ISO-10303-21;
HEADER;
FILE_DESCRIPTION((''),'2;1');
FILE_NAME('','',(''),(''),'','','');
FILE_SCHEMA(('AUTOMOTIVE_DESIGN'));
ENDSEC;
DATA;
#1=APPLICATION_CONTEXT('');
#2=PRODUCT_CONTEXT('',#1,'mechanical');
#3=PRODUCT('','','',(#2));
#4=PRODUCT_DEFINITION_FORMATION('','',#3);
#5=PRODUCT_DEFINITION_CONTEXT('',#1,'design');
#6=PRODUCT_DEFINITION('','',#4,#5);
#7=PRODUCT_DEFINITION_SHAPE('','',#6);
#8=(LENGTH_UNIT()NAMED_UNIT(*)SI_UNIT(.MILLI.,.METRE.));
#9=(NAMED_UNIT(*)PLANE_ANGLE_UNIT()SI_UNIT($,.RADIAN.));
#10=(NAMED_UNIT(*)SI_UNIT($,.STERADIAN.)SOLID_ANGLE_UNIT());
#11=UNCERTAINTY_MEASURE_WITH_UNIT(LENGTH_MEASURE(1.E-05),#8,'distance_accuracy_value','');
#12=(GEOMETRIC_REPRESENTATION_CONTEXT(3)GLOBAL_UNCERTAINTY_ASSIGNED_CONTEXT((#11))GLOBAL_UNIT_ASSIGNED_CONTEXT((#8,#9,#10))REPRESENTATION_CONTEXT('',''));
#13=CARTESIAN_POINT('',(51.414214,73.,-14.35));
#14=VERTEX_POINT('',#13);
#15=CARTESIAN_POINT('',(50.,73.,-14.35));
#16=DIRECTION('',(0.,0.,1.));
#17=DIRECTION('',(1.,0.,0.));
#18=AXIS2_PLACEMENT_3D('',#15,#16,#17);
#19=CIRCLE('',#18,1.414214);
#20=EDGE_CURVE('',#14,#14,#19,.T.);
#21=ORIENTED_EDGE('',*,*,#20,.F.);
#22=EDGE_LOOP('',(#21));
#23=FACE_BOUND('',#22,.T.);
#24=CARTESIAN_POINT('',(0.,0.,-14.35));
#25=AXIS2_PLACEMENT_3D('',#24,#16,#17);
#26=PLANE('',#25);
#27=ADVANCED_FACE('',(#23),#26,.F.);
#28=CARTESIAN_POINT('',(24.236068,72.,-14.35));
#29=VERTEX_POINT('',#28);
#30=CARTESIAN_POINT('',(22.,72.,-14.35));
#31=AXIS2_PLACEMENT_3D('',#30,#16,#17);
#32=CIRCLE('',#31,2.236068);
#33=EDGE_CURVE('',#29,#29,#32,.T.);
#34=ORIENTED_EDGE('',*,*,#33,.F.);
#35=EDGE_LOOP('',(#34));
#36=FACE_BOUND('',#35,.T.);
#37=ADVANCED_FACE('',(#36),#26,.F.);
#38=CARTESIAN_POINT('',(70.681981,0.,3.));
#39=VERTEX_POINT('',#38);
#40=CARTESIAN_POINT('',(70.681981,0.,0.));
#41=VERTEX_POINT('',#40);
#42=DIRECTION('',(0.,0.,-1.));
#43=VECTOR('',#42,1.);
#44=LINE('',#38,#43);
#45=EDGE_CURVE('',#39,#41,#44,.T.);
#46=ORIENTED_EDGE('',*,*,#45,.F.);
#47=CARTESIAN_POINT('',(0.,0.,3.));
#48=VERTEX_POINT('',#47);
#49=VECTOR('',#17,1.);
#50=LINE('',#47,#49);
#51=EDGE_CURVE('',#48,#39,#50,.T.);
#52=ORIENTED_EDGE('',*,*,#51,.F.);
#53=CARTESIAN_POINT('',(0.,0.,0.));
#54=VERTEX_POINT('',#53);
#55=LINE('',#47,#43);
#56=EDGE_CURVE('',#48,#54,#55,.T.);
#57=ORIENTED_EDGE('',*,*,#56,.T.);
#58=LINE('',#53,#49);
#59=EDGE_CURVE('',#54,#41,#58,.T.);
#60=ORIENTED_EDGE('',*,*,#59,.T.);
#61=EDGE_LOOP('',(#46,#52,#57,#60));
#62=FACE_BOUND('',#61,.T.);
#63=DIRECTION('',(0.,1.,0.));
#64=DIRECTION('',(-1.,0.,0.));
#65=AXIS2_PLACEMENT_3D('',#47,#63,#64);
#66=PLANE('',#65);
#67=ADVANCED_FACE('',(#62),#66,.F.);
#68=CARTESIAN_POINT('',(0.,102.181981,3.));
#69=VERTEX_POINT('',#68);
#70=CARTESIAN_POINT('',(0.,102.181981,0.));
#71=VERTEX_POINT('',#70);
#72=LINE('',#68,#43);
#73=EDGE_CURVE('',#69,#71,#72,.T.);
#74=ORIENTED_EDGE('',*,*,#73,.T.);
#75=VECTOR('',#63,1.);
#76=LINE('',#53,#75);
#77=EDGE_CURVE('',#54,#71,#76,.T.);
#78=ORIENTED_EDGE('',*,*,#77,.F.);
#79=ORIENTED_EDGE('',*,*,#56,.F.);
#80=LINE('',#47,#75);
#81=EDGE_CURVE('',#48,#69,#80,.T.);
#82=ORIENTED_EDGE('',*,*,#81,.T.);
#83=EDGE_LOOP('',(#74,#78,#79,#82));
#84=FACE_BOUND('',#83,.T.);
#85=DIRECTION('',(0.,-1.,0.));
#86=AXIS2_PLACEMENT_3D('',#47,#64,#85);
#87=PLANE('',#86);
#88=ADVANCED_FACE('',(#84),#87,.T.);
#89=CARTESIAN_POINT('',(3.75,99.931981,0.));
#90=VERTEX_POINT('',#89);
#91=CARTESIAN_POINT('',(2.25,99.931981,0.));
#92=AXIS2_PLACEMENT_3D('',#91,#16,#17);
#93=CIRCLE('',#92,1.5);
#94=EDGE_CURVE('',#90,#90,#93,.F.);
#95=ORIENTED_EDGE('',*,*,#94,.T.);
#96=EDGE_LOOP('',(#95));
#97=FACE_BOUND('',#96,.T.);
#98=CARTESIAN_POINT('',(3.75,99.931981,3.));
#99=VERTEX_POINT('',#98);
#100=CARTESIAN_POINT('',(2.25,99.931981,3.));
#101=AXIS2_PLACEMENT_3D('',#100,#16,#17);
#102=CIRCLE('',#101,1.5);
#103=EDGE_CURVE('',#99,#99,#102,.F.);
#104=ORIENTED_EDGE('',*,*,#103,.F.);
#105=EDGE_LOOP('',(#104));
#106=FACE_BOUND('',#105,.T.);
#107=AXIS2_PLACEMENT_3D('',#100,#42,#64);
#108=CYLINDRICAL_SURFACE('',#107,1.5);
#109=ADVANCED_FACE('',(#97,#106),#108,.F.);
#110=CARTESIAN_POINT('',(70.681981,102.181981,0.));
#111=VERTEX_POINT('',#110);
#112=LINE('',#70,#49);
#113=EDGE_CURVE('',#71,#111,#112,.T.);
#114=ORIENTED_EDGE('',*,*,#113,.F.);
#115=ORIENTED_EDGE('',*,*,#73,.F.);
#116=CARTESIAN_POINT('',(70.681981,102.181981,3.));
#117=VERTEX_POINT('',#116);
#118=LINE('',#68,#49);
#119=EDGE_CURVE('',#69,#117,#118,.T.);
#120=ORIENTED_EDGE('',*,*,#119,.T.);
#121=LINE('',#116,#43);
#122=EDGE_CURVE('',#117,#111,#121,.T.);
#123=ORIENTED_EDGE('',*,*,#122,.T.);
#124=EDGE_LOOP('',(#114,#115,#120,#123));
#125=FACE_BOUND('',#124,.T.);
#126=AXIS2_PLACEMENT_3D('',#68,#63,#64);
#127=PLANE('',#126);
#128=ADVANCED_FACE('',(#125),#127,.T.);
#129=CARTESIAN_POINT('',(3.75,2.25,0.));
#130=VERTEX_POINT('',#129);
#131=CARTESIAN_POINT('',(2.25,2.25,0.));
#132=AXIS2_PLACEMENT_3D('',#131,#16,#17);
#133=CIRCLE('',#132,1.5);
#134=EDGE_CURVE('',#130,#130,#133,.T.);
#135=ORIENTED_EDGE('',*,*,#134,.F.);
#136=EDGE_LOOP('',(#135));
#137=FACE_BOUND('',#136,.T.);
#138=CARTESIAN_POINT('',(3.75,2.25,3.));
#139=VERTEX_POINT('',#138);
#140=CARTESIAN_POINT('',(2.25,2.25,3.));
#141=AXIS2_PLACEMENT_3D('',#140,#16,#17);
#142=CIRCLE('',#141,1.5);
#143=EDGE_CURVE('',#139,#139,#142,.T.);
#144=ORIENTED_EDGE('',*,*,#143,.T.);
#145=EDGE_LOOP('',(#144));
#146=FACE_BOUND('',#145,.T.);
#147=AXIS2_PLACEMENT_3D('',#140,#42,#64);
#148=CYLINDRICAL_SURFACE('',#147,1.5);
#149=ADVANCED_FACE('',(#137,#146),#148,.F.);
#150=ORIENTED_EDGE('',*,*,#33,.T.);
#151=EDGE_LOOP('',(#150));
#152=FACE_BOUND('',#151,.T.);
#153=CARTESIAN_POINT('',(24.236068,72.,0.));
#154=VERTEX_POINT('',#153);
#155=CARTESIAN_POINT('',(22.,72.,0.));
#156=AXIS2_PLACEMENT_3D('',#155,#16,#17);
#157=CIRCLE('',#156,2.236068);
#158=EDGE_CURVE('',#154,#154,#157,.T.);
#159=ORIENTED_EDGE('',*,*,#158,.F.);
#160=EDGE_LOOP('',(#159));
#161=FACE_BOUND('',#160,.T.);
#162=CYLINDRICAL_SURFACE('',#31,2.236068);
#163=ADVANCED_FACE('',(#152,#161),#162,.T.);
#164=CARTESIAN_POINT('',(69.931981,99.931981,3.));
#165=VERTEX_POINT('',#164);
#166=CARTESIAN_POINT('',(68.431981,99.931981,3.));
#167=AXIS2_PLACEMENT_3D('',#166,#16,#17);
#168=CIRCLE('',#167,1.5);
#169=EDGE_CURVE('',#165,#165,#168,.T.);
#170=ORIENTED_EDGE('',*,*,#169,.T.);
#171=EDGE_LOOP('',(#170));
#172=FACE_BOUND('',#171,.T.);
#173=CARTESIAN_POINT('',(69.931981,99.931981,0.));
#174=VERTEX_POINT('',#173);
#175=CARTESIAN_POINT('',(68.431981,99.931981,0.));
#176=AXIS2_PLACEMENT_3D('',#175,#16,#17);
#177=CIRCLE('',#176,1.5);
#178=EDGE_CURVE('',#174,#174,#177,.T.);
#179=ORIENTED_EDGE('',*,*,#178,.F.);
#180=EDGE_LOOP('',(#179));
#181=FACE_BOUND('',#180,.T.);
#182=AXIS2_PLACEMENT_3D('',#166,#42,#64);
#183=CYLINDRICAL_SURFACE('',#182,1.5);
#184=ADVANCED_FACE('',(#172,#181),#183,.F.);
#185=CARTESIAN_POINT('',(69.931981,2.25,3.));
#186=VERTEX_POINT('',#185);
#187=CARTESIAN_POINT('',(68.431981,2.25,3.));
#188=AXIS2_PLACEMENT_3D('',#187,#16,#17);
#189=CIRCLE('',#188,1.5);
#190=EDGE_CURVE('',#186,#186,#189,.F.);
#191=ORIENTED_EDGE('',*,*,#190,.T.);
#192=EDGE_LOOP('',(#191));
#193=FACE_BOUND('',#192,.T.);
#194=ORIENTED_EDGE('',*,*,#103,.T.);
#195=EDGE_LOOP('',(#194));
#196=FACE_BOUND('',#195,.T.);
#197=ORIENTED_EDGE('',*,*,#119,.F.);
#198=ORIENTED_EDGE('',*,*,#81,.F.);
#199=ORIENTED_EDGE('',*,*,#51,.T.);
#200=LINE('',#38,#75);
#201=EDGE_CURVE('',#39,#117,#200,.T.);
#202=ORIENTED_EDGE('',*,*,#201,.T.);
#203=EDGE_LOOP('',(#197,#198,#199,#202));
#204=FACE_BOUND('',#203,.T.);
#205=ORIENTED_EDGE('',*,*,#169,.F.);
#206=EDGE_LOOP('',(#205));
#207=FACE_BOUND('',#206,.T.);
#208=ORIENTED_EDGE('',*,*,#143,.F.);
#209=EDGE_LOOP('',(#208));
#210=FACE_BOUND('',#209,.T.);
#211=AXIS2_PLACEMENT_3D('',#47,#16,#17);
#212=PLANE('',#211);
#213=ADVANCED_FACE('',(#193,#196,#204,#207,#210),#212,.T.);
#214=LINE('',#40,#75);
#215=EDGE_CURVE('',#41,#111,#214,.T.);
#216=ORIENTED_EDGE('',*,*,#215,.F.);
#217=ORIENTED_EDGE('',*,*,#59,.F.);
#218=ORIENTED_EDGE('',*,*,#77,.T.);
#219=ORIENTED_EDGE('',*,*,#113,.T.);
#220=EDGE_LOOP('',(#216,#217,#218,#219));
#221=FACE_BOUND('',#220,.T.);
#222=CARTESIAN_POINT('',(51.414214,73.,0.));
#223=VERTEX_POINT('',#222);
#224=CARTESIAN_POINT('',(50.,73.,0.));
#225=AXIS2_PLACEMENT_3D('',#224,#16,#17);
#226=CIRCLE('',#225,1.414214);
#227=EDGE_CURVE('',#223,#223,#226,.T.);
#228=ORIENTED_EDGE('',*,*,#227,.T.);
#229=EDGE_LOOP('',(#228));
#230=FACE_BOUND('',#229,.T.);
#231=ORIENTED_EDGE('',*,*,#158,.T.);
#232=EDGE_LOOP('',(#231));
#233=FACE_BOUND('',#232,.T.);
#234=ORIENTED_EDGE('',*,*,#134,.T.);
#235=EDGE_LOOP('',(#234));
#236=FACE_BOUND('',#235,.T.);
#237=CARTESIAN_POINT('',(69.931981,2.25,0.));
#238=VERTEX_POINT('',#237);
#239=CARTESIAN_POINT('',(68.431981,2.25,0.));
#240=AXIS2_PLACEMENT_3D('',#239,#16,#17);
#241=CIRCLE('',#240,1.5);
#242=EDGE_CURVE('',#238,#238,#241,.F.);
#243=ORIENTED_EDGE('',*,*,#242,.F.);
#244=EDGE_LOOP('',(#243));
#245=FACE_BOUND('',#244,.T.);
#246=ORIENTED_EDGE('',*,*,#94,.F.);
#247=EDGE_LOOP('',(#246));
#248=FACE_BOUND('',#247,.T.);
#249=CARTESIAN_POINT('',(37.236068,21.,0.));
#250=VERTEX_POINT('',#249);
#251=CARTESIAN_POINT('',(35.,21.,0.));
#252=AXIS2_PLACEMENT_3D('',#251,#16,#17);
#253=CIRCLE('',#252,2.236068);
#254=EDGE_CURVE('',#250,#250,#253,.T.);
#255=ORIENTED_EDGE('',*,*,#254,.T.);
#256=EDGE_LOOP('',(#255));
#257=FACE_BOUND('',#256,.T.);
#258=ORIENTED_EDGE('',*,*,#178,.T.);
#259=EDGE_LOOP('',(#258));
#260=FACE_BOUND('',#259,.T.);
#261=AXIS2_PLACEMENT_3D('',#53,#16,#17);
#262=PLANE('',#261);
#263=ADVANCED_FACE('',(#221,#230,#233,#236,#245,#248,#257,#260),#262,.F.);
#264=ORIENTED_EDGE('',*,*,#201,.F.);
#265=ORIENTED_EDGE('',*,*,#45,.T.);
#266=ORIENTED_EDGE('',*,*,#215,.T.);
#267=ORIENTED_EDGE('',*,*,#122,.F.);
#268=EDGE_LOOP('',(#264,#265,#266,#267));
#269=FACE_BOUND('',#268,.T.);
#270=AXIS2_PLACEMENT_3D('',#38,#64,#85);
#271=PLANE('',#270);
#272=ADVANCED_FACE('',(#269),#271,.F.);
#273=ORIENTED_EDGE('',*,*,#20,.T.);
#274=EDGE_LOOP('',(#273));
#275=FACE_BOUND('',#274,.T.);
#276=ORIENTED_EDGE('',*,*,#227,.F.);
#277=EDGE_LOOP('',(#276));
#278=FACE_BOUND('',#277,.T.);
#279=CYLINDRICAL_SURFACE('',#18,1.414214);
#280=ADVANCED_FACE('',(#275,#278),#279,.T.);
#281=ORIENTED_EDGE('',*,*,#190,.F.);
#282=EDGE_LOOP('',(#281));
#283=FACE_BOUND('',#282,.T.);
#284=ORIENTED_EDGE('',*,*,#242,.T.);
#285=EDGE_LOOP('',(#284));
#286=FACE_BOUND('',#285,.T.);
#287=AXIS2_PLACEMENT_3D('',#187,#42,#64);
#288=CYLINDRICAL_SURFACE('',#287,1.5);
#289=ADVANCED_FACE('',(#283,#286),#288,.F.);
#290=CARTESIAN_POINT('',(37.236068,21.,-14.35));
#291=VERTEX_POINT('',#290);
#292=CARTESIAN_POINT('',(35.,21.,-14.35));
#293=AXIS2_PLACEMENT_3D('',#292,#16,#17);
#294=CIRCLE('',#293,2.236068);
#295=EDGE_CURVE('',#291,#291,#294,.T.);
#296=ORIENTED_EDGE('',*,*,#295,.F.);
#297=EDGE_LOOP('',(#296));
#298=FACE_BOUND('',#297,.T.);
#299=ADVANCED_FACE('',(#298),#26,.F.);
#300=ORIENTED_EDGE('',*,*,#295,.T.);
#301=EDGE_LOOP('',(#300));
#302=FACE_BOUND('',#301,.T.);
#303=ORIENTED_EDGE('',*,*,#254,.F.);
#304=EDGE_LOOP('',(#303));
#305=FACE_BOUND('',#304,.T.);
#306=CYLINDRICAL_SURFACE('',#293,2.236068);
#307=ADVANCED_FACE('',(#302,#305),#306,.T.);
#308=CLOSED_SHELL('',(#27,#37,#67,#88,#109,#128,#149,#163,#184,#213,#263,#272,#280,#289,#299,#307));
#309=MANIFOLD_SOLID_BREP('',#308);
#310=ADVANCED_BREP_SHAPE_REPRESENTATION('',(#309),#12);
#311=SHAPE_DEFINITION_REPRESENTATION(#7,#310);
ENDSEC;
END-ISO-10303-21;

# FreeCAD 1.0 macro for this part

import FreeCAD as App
import Part
import Sketcher
from FreeCAD import Vector
Q = App.Units.Quantity

doc = App.newDocument("Part")
body = doc.addObject("PartDesign::Body", "Body")

# Sketch on XY plane
sketch1 = body.newObject("Sketcher::SketchObject", "Sketch")
sketch1.AttachmentSupport = (doc.getObject("XY_Plane"), [""])
sketch1.MapMode = "FlatFace"
sketch1.addGeometry(Part.LineSegment(Vector(0, 102.2, 0), Vector(0, 0, 0)), False)
sketch1.addGeometry(Part.LineSegment(Vector(0, 0, 0), Vector(70.7, 0, 0)), False)
sketch1.addGeometry(Part.LineSegment(Vector(70.7, 0, 0), Vector(70.7, 102.2, 0)), False)
sketch1.addGeometry(Part.LineSegment(Vector(70.7, 102.2, 0), Vector(0, 102.2, 0)), False)
sketch1.addGeometry(Part.Circle(Vector(2.2, 2.2, 0), Vector(0, 0, 1), 1.5), False)
sketch1.addGeometry(Part.Circle(Vector(68.4, 2.2, 0), Vector(0, 0, 1), 1.5), False)
sketch1.addGeometry(Part.Circle(Vector(2.2, 99.9, 0), Vector(0, 0, 1), 1.5), False)
sketch1.addGeometry(Part.Circle(Vector(68.4, 99.9, 0), Vector(0, 0, 1), 1.5), False)
sketch1.addConstraint(Sketcher.Constraint("Coincident", 0, 2, 1, 1))
sketch1.addConstraint(Sketcher.Constraint("Coincident", 1, 2, 2, 1))
sketch1.addConstraint(Sketcher.Constraint("Coincident", 2, 2, 3, 1))
sketch1.addConstraint(Sketcher.Constraint("Coincident", 3, 2, 0, 1))
sketch1.addConstraint(Sketcher.Constraint("Vertical", 0))
sketch1.addConstraint(Sketcher.Constraint("Horizontal", 1))
sketch1.addConstraint(Sketcher.Constraint("Vertical", 2))
sketch1.addConstraint(Sketcher.Constraint("Horizontal", 3))
sketch1.addConstraint(Sketcher.Constraint("Coincident", 0, 2, -1, 1))
sketch1.addConstraint(Sketcher.Constraint("Equal", 4, 5))
sketch1.addConstraint(Sketcher.Constraint("Equal", 5, 6))
sketch1.addConstraint(Sketcher.Constraint("Equal", 6, 7))
sketch1.addConstraint(Sketcher.Constraint("Horizontal", 4, 3, 5, 3))
sketch1.addConstraint(Sketcher.Constraint("Horizontal", 6, 3, 7, 3))
sketch1.addConstraint(Sketcher.Constraint("Vertical", 4, 3, 6, 3))
sketch1.addConstraint(Sketcher.Constraint("Vertical", 5, 3, 7, 3))
sketch1.addConstraint(Sketcher.Constraint("Diameter", 4, Q("3 mm")))
sketch1.addConstraint(Sketcher.Constraint("DistanceX", -1, 1, 4, 3, Q("2.25 mm")))
sketch1.addConstraint(Sketcher.Constraint("DistanceY", -1, 1, 4, 3, Q("2.25 mm")))
sketch1.addConstraint(Sketcher.Constraint("DistanceX", 5, 3, 1, 2, Q("2.25 mm")))
sketch1.addConstraint(Sketcher.Constraint("DistanceY", 7, 3, 2, 2, Q("2.25 mm")))
sketch1.addConstraint(Sketcher.Constraint("DistanceX", 1, 1, 1, 2, Q("70.681981 mm")))
sketch1.addConstraint(Sketcher.Constraint("DistanceY", 0, 2, 0, 1, Q("102.181981 mm")))
pad1 = body.newObject("PartDesign::Pad", "Pad")
pad1.Profile = sketch1
pad1.Length = 3

# Sketch on XY plane
sketch2 = body.newObject("Sketcher::SketchObject", "Sketch001")
sketch2.AttachmentSupport = (doc.getObject("XY_Plane"), [""])
sketch2.MapMode = "FlatFace"
sketch2.addGeometry(Part.Circle(Vector(35, 21, 0), Vector(0, 0, 1), 2.2), False)
sketch2.addGeometry(Part.Circle(Vector(50, 73, 0), Vector(0, 0, 1), 1.4), False)
sketch2.addGeometry(Part.Circle(Vector(22, 72, 0), Vector(0, 0, 1), 2.2), False)
sketch2.addConstraint(Sketcher.Constraint("Equal", 0, 2))
sketch2.addConstraint(Sketcher.Constraint("DistanceX", -1, 1, 0, 3, Q("35 mm")))
sketch2.addConstraint(Sketcher.Constraint("DistanceY", -1, 1, 0, 3, Q("21 mm")))
sketch2.addConstraint(Sketcher.Constraint("DistanceX", -1, 1, 1, 3, Q("50 mm")))
sketch2.addConstraint(Sketcher.Constraint("DistanceY", -1, 1, 1, 3, Q("73 mm")))
sketch2.addConstraint(Sketcher.Constraint("DistanceX", -1, 1, 2, 3, Q("22 mm")))
sketch2.addConstraint(Sketcher.Constraint("DistanceY", -1, 1, 2, 3, Q("72 mm")))
sketch2.addConstraint(Sketcher.Constraint("Diameter", 0, Q("4.472136 mm")))
sketch2.addConstraint(Sketcher.Constraint("Diameter", 1, Q("2.828427 mm")))
pad2 = body.newObject("PartDesign::Pad", "Pad001")
pad2.Profile = sketch2
pad2.Length = 14.35
pad2.Reversed = True

doc.recompute()
